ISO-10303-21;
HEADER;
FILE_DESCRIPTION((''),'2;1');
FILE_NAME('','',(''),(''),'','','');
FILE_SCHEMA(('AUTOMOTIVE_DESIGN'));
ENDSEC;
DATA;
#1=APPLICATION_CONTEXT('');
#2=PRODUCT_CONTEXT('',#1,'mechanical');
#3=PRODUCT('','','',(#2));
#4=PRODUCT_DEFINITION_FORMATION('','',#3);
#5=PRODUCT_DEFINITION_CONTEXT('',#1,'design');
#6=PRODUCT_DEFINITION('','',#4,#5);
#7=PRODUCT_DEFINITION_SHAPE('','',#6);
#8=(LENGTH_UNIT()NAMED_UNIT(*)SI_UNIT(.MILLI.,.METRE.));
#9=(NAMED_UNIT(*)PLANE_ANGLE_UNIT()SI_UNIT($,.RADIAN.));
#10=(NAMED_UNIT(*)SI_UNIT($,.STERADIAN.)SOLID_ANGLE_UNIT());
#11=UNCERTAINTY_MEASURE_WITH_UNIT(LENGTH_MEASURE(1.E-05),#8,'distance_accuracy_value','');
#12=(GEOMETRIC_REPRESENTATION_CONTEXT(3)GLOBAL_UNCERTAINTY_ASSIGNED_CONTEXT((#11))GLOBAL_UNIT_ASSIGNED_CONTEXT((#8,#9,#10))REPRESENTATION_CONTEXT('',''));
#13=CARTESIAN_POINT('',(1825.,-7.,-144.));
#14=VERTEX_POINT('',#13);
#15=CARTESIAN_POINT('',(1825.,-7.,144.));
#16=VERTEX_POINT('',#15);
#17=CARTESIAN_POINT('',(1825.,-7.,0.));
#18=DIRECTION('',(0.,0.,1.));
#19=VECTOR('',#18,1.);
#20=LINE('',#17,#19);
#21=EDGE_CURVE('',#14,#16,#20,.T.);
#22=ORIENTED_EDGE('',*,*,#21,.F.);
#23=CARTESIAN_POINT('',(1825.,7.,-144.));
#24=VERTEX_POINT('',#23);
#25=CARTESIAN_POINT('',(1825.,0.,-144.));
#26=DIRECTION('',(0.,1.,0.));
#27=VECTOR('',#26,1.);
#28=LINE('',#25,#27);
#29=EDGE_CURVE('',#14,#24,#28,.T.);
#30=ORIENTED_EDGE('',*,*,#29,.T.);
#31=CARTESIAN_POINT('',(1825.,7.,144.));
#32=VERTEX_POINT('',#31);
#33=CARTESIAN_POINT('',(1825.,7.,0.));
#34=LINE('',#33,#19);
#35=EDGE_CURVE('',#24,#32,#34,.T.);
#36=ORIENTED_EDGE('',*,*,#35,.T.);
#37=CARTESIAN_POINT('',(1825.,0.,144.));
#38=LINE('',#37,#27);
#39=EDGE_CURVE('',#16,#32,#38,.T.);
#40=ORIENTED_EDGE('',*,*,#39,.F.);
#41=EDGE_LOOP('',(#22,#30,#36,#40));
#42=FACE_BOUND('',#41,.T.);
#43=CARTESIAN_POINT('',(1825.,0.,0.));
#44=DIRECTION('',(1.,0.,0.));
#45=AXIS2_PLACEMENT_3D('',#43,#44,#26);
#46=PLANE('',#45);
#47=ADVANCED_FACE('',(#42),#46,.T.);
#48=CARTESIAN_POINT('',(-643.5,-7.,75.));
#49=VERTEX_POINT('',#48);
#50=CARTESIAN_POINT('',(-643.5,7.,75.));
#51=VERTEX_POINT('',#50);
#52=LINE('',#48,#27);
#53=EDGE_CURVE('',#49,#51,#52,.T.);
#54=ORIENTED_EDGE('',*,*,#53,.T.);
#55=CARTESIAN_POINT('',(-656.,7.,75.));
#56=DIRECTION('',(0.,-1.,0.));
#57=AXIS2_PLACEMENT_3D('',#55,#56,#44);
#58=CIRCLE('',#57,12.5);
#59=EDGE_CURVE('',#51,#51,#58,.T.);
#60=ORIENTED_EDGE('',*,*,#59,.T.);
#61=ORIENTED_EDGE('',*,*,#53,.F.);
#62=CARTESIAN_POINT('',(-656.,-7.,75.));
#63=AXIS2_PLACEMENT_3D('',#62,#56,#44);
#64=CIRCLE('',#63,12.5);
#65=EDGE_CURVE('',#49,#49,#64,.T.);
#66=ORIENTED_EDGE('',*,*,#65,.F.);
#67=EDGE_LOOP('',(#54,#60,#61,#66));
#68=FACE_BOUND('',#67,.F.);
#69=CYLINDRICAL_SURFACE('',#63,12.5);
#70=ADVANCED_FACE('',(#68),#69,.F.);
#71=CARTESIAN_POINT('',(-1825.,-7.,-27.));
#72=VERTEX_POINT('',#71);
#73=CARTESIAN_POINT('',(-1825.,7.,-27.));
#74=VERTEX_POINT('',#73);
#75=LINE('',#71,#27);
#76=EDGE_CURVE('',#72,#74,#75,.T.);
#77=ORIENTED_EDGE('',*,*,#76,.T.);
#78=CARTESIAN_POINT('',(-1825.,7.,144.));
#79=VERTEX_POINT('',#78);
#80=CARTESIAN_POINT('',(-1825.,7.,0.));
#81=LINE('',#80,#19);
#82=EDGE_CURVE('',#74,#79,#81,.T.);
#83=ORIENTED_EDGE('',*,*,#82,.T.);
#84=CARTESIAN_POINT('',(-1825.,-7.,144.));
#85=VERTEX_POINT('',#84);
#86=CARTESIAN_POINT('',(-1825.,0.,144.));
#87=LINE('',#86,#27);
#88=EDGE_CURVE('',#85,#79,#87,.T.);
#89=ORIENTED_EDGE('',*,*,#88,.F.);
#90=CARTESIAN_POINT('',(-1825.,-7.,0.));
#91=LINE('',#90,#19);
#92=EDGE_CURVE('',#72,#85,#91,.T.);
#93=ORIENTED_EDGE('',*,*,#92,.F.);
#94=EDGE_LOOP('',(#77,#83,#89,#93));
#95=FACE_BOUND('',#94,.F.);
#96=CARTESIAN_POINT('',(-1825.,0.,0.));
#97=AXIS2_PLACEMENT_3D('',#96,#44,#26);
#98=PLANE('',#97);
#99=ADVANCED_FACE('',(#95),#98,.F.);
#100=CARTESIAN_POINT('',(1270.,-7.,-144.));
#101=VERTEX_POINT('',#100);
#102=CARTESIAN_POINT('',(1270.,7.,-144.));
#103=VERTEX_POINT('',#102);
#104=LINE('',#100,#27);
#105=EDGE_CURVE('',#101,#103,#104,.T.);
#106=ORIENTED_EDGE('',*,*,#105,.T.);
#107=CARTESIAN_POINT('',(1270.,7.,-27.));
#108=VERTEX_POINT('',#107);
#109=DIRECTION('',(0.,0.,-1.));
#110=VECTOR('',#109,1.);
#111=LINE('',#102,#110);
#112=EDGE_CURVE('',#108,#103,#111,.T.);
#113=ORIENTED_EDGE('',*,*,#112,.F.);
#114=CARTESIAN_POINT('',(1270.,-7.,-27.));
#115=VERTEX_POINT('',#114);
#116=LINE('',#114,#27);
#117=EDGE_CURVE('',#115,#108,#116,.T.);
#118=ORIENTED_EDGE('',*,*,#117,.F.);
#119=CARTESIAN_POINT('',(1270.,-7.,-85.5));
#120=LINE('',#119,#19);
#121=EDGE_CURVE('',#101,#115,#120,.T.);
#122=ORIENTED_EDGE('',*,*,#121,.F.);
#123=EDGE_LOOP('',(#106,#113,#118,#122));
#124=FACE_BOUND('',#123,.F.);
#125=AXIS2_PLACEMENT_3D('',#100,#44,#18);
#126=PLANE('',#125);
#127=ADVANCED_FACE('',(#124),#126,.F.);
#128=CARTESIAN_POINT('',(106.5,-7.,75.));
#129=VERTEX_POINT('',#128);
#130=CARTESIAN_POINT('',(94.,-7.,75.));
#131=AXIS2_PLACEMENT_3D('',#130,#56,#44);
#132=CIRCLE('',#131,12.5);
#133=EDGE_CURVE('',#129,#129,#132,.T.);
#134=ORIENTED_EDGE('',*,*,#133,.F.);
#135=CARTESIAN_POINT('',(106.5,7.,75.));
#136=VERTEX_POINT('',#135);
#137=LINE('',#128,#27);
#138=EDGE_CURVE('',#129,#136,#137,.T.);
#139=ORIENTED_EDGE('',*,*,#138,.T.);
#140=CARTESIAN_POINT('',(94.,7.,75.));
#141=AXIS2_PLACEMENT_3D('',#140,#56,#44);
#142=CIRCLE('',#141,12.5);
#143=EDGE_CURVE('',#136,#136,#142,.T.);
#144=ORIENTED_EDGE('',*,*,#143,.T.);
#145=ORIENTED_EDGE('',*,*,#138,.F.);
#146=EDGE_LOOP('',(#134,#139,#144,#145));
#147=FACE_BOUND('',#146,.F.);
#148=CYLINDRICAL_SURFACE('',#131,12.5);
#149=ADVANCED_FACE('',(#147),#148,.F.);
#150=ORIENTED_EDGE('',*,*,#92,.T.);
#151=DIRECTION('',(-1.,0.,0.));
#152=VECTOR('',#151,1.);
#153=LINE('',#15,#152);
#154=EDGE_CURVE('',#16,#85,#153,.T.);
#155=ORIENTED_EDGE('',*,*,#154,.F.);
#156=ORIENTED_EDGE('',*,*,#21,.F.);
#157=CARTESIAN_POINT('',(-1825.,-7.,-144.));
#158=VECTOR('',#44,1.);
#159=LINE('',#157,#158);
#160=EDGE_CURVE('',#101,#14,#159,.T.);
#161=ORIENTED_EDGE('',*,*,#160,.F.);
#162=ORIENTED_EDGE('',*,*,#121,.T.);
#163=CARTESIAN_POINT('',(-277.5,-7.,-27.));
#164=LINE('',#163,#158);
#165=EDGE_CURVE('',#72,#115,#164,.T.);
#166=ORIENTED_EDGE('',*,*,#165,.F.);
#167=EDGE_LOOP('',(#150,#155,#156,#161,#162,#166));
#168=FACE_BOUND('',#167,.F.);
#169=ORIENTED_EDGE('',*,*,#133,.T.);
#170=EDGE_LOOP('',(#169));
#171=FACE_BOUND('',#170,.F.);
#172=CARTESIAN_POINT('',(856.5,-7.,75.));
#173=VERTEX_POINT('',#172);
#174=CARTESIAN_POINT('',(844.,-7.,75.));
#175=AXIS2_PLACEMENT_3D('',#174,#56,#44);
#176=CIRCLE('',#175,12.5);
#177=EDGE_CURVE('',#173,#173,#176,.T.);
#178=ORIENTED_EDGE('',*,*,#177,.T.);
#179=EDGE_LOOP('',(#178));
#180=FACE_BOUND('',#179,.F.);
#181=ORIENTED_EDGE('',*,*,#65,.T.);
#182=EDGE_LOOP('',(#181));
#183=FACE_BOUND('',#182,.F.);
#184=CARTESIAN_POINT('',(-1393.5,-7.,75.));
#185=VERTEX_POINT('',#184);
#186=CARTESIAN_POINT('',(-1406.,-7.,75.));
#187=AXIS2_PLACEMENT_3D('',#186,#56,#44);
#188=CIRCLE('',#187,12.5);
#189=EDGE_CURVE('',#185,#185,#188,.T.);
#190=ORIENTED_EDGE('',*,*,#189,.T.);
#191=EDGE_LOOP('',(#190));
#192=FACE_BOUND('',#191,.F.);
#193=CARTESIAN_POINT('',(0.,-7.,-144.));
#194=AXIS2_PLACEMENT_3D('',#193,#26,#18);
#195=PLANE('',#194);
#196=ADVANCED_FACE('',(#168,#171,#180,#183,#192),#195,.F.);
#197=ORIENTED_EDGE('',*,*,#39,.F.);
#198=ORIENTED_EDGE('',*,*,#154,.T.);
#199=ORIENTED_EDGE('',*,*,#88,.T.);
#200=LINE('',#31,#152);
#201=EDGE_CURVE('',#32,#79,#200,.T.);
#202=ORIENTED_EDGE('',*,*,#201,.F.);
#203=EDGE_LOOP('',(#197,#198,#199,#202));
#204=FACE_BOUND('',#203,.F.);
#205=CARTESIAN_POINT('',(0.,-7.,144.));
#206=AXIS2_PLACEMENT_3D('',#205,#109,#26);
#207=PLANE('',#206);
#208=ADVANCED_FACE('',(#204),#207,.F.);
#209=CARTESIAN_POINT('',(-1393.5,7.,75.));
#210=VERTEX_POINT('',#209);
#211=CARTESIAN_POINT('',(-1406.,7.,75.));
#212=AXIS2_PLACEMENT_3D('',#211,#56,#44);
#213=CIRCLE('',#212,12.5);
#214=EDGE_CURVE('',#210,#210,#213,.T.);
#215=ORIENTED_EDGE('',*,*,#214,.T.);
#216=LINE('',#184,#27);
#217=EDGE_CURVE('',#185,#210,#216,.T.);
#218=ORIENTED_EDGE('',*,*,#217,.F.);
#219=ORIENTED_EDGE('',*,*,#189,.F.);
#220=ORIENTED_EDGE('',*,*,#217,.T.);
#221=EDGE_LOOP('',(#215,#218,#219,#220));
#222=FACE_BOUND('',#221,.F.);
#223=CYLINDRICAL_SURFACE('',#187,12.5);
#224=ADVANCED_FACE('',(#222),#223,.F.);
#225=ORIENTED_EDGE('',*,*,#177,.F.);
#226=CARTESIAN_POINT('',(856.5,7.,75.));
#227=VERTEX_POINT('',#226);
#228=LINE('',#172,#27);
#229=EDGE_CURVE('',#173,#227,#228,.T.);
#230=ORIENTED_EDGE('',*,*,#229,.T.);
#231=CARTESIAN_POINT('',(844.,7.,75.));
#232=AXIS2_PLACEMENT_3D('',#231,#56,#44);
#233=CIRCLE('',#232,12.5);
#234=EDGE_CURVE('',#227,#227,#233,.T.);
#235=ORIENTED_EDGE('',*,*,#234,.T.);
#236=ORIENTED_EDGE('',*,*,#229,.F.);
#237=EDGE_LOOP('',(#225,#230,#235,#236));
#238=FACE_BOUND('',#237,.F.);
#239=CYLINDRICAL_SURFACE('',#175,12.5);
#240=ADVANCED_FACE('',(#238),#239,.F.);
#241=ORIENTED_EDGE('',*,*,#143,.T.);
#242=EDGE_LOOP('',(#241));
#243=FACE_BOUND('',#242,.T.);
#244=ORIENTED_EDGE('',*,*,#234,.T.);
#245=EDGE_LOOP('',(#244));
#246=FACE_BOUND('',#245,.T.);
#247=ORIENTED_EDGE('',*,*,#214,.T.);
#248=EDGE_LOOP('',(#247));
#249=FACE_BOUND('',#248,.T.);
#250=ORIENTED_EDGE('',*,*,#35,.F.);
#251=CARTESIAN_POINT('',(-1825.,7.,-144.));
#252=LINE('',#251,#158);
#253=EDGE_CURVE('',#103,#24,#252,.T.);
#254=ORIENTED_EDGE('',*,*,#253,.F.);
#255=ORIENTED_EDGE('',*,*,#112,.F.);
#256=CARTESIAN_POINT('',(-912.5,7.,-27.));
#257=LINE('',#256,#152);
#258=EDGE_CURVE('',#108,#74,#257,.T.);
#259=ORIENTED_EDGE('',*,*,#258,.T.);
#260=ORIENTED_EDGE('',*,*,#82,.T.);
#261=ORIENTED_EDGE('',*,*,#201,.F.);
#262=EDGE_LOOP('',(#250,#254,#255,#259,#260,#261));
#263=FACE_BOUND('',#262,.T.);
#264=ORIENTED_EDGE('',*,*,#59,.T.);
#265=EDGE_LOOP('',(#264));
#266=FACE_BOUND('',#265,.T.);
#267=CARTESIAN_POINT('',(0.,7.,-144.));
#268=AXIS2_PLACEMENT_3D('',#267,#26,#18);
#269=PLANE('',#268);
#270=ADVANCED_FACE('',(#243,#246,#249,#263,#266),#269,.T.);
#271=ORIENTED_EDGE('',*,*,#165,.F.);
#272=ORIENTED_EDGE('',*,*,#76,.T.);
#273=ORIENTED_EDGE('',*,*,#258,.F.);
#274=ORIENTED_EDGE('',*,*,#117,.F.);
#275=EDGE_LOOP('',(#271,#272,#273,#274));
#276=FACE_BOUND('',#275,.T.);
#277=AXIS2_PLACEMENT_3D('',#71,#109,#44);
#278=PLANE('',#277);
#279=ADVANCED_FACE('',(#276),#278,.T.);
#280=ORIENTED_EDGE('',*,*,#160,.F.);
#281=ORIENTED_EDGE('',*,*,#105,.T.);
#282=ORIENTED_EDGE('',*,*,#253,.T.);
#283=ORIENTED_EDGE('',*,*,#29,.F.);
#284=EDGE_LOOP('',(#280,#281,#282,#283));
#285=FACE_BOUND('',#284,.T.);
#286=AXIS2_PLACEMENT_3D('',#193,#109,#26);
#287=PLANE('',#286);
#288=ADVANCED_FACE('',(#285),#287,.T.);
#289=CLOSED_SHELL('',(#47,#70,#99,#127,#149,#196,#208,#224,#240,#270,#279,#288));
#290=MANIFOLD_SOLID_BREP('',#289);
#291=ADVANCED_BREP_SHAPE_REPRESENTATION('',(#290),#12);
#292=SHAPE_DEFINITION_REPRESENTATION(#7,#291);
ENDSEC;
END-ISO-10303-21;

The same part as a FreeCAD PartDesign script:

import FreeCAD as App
import Part
import Sketcher


def add_polygon(sketch, points):
    """Adds a closed chain of lines whose ends are joined by coincident constraints."""
    first, n = sketch.GeometryCount, len(points)
    for a, b in zip(points, points[1:] + points[:1]):
        sketch.addGeometry(Part.LineSegment(App.Vector(*a, 0), App.Vector(*b, 0)), False)
    for i in range(n):
        sketch.addConstraint(Sketcher.Constraint("Coincident", first + i, 2, first + (i + 1) % n, 1))

doc = App.newDocument("Part")
body = doc.addObject("PartDesign::Body", "Body")

# Sketch on YZ plane
sketch1 = doc.addObject("Sketcher::SketchObject", "Sketch")
body.addObject(sketch1)
sketch1.AttachmentSupport = (doc.YZ_Plane, [""])
sketch1.MapMode = "FlatFace"
add_polygon(sketch1, [(-7, 144), (-7, -144), (7, -144), (7, 144)])  # lines 0-3
sketch1.addConstraint([
    Sketcher.Constraint("Vertical", 0),
    Sketcher.Constraint("Horizontal", 1),
    Sketcher.Constraint("Vertical", 2),
    Sketcher.Constraint("Horizontal", 3),
    Sketcher.Constraint("Symmetric", 0, 2, 2, 2, -1, 1),
    Sketcher.Constraint("DistanceX", 1, 1, 1, 2, 14.0),
    Sketcher.Constraint("DistanceY", 0, 2, 0, 1, 288.0),
])
pad1 = doc.addObject("PartDesign::Pad", "Pad")
body.addObject(pad1)
pad1.Profile = sketch1
pad1.Length = 3650
pad1.Midplane = True

# Sketch on XZ plane
sketch2 = doc.addObject("Sketcher::SketchObject", "Sketch001")
body.addObject(sketch2)
sketch2.AttachmentSupport = (doc.XZ_Plane, [""])
sketch2.MapMode = "FlatFace"
sketch2.AttachmentOffset = App.Placement(App.Vector(0, 0, 7), App.Rotation())
add_polygon(sketch2, [(-1825, -27), (-1825, -144), (1270, -144), (1270, -27)])  # lines 0-3
sketch2.addConstraint([
    Sketcher.Constraint("Vertical", 0),
    Sketcher.Constraint("Horizontal", 1),
    Sketcher.Constraint("Vertical", 2),
    Sketcher.Constraint("Horizontal", 3),
    Sketcher.Constraint("DistanceX", 1, 1, 1, 2, 3095.0),
    Sketcher.Constraint("DistanceY", 0, 2, 0, 1, 117.0),
    Sketcher.Constraint("DistanceX", 0, 2, -1, 1, 1825.0),
    Sketcher.Constraint("DistanceY", 0, 2, -1, 1, 144.0),
])
pocket1 = doc.addObject("PartDesign::Pocket", "Pocket")
body.addObject(pocket1)
pocket1.Profile = sketch2
pocket1.Length = 25

# Sketch on XZ plane
sketch3 = doc.addObject("Sketcher::SketchObject", "Sketch002")
body.addObject(sketch3)
sketch3.AttachmentSupport = (doc.XZ_Plane, [""])
sketch3.MapMode = "FlatFace"
sketch3.AttachmentOffset = App.Placement(App.Vector(0, 0, 7), App.Rotation())
sketch3.addGeometry([
    Part.Circle(App.Vector(-1406, 75, 0), App.Vector(0, 0, 1), 12),
    Part.Circle(App.Vector(-656, 75, 0), App.Vector(0, 0, 1), 12),
    Part.Circle(App.Vector(94, 75, 0), App.Vector(0, 0, 1), 12),
    Part.Circle(App.Vector(844, 75, 0), App.Vector(0, 0, 1), 12),
], False)
sketch3.addConstraint([
    Sketcher.Constraint("Equal", 0, 1),
    Sketcher.Constraint("Equal", 1, 2),
    Sketcher.Constraint("Equal", 2, 3),
    Sketcher.Constraint("Horizontal", 0, 3, 1, 3),
    Sketcher.Constraint("Horizontal", 1, 3, 2, 3),
    Sketcher.Constraint("Horizontal", 2, 3, 3, 3),
    Sketcher.Constraint("Diameter", 0, 25.0),
    Sketcher.Constraint("DistanceX", 0, 3, -1, 1, 1406.0),
    Sketcher.Constraint("DistanceY", -1, 1, 0, 3, 75.0),
    Sketcher.Constraint("DistanceX", 1, 3, -1, 1, 656.0),
    Sketcher.Constraint("DistanceX", -1, 1, 2, 3, 94.0),
    Sketcher.Constraint("DistanceX", -1, 1, 3, 3, 844.0),
])
pocket2 = doc.addObject("PartDesign::Pocket", "Pocket001")
body.addObject(pocket2)
pocket2.Profile = sketch3
pocket2.Length = 25

doc.recompute()
